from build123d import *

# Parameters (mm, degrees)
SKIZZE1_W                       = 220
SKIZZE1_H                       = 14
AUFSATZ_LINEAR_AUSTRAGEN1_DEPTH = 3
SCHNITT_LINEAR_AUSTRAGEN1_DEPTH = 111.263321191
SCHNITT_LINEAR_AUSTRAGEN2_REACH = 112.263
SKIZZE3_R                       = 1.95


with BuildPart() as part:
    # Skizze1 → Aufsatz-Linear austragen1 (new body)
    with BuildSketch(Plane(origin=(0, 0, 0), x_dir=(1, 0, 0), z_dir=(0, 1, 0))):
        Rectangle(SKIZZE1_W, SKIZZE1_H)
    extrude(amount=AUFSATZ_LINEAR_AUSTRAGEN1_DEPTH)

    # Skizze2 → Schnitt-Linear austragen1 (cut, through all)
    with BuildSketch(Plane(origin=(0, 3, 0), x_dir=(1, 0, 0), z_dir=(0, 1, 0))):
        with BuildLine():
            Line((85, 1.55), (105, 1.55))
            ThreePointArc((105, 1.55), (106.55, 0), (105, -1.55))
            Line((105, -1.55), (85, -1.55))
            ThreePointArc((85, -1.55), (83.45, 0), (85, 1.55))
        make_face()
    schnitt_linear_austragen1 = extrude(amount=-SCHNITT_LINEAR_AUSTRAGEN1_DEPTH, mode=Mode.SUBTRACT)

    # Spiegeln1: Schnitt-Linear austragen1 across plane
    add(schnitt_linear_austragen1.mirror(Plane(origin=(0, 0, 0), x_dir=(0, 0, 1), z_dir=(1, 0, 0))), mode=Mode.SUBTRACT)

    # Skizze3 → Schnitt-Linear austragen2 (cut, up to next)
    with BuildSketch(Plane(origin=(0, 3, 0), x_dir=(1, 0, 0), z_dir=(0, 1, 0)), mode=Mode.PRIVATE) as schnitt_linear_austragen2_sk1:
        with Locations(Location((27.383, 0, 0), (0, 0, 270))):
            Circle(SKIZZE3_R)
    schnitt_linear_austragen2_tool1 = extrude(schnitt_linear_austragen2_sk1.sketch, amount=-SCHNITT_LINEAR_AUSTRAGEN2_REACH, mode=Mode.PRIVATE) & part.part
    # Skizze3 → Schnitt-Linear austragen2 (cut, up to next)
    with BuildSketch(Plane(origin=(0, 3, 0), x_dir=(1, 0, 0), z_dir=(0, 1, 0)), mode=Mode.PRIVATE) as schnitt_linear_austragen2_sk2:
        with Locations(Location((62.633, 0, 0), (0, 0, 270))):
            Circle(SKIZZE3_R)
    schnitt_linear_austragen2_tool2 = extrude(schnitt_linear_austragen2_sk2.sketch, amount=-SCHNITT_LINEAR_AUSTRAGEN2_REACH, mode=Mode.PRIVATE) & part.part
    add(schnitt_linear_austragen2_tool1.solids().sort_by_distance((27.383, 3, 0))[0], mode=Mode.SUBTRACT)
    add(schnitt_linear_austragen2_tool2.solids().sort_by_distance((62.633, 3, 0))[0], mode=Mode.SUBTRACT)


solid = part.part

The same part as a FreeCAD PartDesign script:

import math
import FreeCAD as App
import Part
import Sketcher

V = App.Vector


def add_polygon(sketch, points):
    """Adds a closed chain of lines whose ends are joined by coincident constraints."""
    first, n = sketch.GeometryCount, len(points)
    for a, b in zip(points, points[1:] + points[:1]):
        sketch.addGeometry(Part.LineSegment(App.Vector(*a, 0), App.Vector(*b, 0)), False)
    for i in range(n):
        sketch.addConstraint(Sketcher.Constraint("Coincident", first + i, 2, first + (i + 1) % n, 1))

doc = App.newDocument("Part")
params = doc.addObject("Spreadsheet::Sheet", "Params")
for row, (alias, value) in enumerate([
    ("sketch1_width", "220 mm"),
    ("sketch1_height", "14 mm"),
    ("pad1_length", "3 mm"),
    ("sketch2_width", "20 mm"),
    ("sketch2_radius", "1.55 mm"),
    ("sketch3_diameter", "3.9 mm"),
    ("sketch4_diameter", "3.9 mm"),
], start=1):
    params.set(f"A{row}", alias)
    params.set(f"B{row}", "=" + value)
    params.setAlias(f"B{row}", alias)

body = doc.addObject("PartDesign::Body", "Body")

sketch1 = doc.addObject("Sketcher::SketchObject", "Sketch")
body.addObject(sketch1)
sketch1.AttachmentSupport = (doc.XZ_Plane, [""])
sketch1.MapMode = "FlatFace"
add_polygon(sketch1, [(-110, -7), (-110, 7), (110, 7), (110, -7)])
sketch1.addConstraint(Sketcher.Constraint("Vertical", 0))
sketch1.addConstraint(Sketcher.Constraint("Horizontal", 1))
sketch1.addConstraint(Sketcher.Constraint("Vertical", 2))
sketch1.addConstraint(Sketcher.Constraint("Horizontal", 3))
sketch1.addConstraint(Sketcher.Constraint("Symmetric", 0, 2, 2, 2, -1, 1))
sketch1.addConstraint(Sketcher.Constraint("DistanceX", 1, 1, 1, 2, 220.0))
sketch1.addConstraint(Sketcher.Constraint("DistanceY", 0, 1, 0, 2, 14.0))
sketch1.setExpression("Constraints[9]", "Params.sketch1_width")
sketch1.setExpression("Constraints[10]", "Params.sketch1_height")
pad1 = doc.addObject("PartDesign::Pad", "Pad")
body.addObject(pad1)
pad1.Profile = sketch1
pad1.setExpression("Length", "Params.pad1_length")
pad1.Reversed = True

sketch2 = doc.addObject("Sketcher::SketchObject", "Sketch001")
body.addObject(sketch2)
sketch2.AttachmentSupport = (doc.XZ_Plane, [""])
sketch2.MapMode = "FlatFace"
sketch2.AttachmentOffset = App.Placement(V(0, 0, -3), App.Rotation())
sketch2.addGeometry(Part.LineSegment(V(105, -1.6, 0), V(85, -1.6, 0)), False)
sketch2.addGeometry(Part.ArcOfCircle(Part.Circle(V(85, 0, 0), V(0, 0, 1), 1.6), math.radians(90), math.radians(270)), False)
sketch2.addGeometry(Part.LineSegment(V(85, 1.6, 0), V(105, 1.6, 0)), False)
sketch2.addGeometry(Part.ArcOfCircle(Part.Circle(V(105, 0, 0), V(0, 0, 1), 1.6), math.radians(-90), math.radians(90)), False)
sketch2.addConstraint(Sketcher.Constraint("Tangent", 0, 2, 1, 2))
sketch2.addConstraint(Sketcher.Constraint("Tangent", 1, 1, 2, 1))
sketch2.addConstraint(Sketcher.Constraint("Tangent", 2, 2, 3, 2))
sketch2.addConstraint(Sketcher.Constraint("Tangent", 3, 1, 0, 1))
sketch2.addConstraint(Sketcher.Constraint("Horizontal", 0))
sketch2.addConstraint(Sketcher.Constraint("Horizontal", 2))
sketch2.addConstraint(Sketcher.Constraint("PointOnObject", 1, 3, -1))
sketch2.addConstraint(Sketcher.Constraint("DistanceX", 0, 2, 0, 1, 20.0))
sketch2.addConstraint(Sketcher.Constraint("Radius", 1, 1.55))
sketch2.addConstraint(Sketcher.Constraint("DistanceX", -1, 1, 1, 3, 85.0))
sketch2.setExpression("Constraints[7]", "Params.sketch2_width")
sketch2.setExpression("Constraints[8]", "Params.sketch2_radius")
pocket1 = doc.addObject("PartDesign::Pocket", "Pocket")
body.addObject(pocket1)
pocket1.Profile = sketch2
pocket1.Type = "ThroughAll"
pocket1.Reversed = True
doc.recompute()

mirrored = doc.addObject("PartDesign::Mirrored", "Mirrored")
body.addObject(mirrored)
mirrored.Originals = [pocket1]
mirrored.MirrorPlane = (doc.YZ_Plane, [""])
body.Tip = mirrored

sketch3 = doc.addObject("Sketcher::SketchObject", "Sketch002")
body.addObject(sketch3)
sketch3.AttachmentSupport = (doc.XZ_Plane, [""])
sketch3.MapMode = "FlatFace"
sketch3.AttachmentOffset = App.Placement(V(0, 0, -3), App.Rotation())
sketch3.addGeometry(Part.Circle(V(27.4, 0, 0), V(0, 0, 1), 1.9), False)
sketch3.addConstraint(Sketcher.Constraint("PointOnObject", 0, 3, -1))
sketch3.addConstraint(Sketcher.Constraint("Diameter", 0, 3.9))
sketch3.addConstraint(Sketcher.Constraint("DistanceX", -1, 1, 0, 3, 27.383))
sketch3.setExpression("Constraints[1]", "Params.sketch3_diameter")
pocket2 = doc.addObject("PartDesign::Pocket", "Pocket001")
body.addObject(pocket2)
pocket2.Profile = sketch3
pocket2.Type = "UpToFirst"
pocket2.Reversed = True

sketch4 = doc.addObject("Sketcher::SketchObject", "Sketch003")
body.addObject(sketch4)
sketch4.AttachmentSupport = (doc.XZ_Plane, [""])
sketch4.MapMode = "FlatFace"
sketch4.AttachmentOffset = App.Placement(V(0, 0, -3), App.Rotation())
sketch4.addGeometry(Part.Circle(V(62.6, 0, 0), V(0, 0, 1), 1.9), False)
sketch4.addConstraint(Sketcher.Constraint("PointOnObject", 0, 3, -1))
sketch4.addConstraint(Sketcher.Constraint("Diameter", 0, 3.9))
sketch4.addConstraint(Sketcher.Constraint("DistanceX", -1, 1, 0, 3, 62.633))
sketch4.setExpression("Constraints[1]", "Params.sketch4_diameter")
pocket3 = doc.addObject("PartDesign::Pocket", "Pocket002")
body.addObject(pocket3)
pocket3.Profile = sketch4
pocket3.Type = "UpToFirst"
pocket3.Reversed = True

doc.recompute()
